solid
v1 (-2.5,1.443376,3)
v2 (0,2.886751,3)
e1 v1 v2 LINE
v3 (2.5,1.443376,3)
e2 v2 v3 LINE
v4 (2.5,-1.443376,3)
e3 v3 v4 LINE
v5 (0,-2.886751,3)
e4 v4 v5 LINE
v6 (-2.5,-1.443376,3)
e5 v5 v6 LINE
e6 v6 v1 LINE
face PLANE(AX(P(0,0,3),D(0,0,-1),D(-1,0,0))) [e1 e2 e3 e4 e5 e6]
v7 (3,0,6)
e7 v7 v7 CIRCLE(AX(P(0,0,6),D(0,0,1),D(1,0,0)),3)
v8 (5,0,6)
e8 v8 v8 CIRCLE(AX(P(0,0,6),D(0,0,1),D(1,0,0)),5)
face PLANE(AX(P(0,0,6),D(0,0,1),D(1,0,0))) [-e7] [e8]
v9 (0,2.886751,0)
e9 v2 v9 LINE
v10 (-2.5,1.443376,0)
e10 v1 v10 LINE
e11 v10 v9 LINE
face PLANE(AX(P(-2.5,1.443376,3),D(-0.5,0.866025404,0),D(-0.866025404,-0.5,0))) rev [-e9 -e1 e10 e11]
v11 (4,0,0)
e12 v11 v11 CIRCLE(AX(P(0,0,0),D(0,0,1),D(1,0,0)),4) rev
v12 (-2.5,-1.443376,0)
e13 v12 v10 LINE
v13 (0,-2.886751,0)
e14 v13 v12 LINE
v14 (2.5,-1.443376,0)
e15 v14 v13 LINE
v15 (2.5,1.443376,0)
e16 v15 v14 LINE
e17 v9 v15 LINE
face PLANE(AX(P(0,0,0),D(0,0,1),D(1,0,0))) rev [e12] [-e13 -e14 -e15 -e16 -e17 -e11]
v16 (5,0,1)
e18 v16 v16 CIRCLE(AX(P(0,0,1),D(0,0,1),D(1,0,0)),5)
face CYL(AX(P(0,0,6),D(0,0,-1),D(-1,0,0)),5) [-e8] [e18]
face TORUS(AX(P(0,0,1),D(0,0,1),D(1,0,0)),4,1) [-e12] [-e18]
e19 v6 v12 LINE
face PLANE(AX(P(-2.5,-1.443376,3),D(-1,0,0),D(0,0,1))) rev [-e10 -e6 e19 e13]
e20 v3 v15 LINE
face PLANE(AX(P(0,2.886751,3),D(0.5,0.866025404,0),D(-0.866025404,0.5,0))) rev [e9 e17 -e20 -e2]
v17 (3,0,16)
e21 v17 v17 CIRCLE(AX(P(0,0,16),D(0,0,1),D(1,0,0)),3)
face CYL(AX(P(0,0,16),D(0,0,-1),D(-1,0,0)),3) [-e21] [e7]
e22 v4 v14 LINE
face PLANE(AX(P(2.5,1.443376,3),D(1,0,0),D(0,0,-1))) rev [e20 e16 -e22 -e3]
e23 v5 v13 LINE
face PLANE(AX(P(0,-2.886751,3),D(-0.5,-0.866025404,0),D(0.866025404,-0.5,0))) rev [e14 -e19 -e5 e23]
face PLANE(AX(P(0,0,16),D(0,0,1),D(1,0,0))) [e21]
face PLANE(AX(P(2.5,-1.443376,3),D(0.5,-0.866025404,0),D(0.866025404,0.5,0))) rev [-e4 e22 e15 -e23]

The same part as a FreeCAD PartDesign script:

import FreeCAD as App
import Part
import Sketcher

V = App.Vector
Q = App.Units.Quantity


def edges_at(feature, points):
    """Names of the edges that pass closest to the given points."""
    edges = feature.Shape.Edges
    near = lambda p: min(range(len(edges)), key=lambda i: edges[i].distToShape(Part.Vertex(*p))[0])
    return sorted({f"Edge{near(p) + 1}" for p in points})


def add_polygon(sketch, points):
    """Adds a closed chain of lines whose ends are joined by coincident constraints."""
    first, n = sketch.GeometryCount, len(points)
    for a, b in zip(points, points[1:] + points[:1]):
        sketch.addGeometry(Part.LineSegment(App.Vector(*a, 0), App.Vector(*b, 0)), False)
    for i in range(n):
        sketch.addConstraint(Sketcher.Constraint("Coincident", first + i, 2, first + (i + 1) % n, 1))

doc = App.newDocument("Part")
body = doc.addObject("PartDesign::Body", "Body")

# Sketch on XY plane
sketch1 = body.newObject("Sketcher::SketchObject", "Sketch")
sketch1.AttachmentSupport = (doc.getObject("XY_Plane"), [""])
sketch1.MapMode = "FlatFace"
sketch1.addGeometry(Part.Circle(V(0, 0, 0), V(0, 0, 1), 5), False)
sketch1.addConstraint(Sketcher.Constraint("Coincident", 0, 3, -1, 1))
sketch1.addConstraint(Sketcher.Constraint("Diameter", 0, 10.0))
pad1 = body.newObject("PartDesign::Pad", "Pad")
pad1.Profile = sketch1
pad1.Length = 6

# Sketch on XY plane
sketch2 = body.newObject("Sketcher::SketchObject", "Sketch001")
sketch2.AttachmentSupport = (doc.getObject("XY_Plane"), [""])
sketch2.MapMode = "FlatFace"
sketch2.AttachmentOffset = App.Placement(V(0, 0, 6), App.Rotation())
sketch2.addGeometry(Part.Circle(V(0, 0, 0), V(0, 0, 1), 3), False)
sketch2.addConstraint(Sketcher.Constraint("Coincident", 0, 3, -1, 1))
sketch2.addConstraint(Sketcher.Constraint("Diameter", 0, 6.0))
pad2 = body.newObject("PartDesign::Pad", "Pad001")
pad2.Profile = sketch2
pad2.Length = 10

# Sketch on XY plane
sketch3 = body.newObject("Sketcher::SketchObject", "Sketch002")
sketch3.AttachmentSupport = (doc.getObject("XY_Plane"), [""])
sketch3.MapMode = "FlatFace"
add_polygon(sketch3, [(2.5, -1.443376), (0, -2.886751), (-2.5, -1.443376), (-2.5, 1.443376), (0, 2.886751), (2.5, 1.443376)])  # lines 0-5
sketch3.addConstraint(Sketcher.Constraint("Vertical", 2))
sketch3.addConstraint(Sketcher.Constraint("Vertical", 5))
sketch3.addConstraint(Sketcher.Constraint("Symmetric", 0, 2, 3, 2, -1, 1))
sketch3.addConstraint(Sketcher.Constraint("Symmetric", 1, 2, 4, 2, -1, 1))
sketch3.addConstraint(Sketcher.Constraint("PointOnObject", 0, 2, -2))
sketch3.addConstraint(Sketcher.Constraint("Parallel", 0, 3))
sketch3.addConstraint(Sketcher.Constraint("Horizontal", 2, 2, 4, 2))
sketch3.addConstraint(Sketcher.Constraint("Angle", 0, Q("-150 deg")))
sketch3.addConstraint(Sketcher.Constraint("DistanceX", 2, 2, 4, 2, 5.0))
sketch3.addConstraint(Sketcher.Constraint("DistanceY", 2, 1, 2, 2, 2.886751))
pocket1 = body.newObject("PartDesign::Pocket", "Pocket")
pocket1.Profile = sketch3
pocket1.Length = 3
pocket1.Reversed = True
doc.recompute()

fillet = body.newObject("PartDesign::Fillet", "Fillet")
fillet.Base = (pocket1, edges_at(pocket1, [(-5, 0, 0)]))
fillet.Radius = 1

doc.recompute()
